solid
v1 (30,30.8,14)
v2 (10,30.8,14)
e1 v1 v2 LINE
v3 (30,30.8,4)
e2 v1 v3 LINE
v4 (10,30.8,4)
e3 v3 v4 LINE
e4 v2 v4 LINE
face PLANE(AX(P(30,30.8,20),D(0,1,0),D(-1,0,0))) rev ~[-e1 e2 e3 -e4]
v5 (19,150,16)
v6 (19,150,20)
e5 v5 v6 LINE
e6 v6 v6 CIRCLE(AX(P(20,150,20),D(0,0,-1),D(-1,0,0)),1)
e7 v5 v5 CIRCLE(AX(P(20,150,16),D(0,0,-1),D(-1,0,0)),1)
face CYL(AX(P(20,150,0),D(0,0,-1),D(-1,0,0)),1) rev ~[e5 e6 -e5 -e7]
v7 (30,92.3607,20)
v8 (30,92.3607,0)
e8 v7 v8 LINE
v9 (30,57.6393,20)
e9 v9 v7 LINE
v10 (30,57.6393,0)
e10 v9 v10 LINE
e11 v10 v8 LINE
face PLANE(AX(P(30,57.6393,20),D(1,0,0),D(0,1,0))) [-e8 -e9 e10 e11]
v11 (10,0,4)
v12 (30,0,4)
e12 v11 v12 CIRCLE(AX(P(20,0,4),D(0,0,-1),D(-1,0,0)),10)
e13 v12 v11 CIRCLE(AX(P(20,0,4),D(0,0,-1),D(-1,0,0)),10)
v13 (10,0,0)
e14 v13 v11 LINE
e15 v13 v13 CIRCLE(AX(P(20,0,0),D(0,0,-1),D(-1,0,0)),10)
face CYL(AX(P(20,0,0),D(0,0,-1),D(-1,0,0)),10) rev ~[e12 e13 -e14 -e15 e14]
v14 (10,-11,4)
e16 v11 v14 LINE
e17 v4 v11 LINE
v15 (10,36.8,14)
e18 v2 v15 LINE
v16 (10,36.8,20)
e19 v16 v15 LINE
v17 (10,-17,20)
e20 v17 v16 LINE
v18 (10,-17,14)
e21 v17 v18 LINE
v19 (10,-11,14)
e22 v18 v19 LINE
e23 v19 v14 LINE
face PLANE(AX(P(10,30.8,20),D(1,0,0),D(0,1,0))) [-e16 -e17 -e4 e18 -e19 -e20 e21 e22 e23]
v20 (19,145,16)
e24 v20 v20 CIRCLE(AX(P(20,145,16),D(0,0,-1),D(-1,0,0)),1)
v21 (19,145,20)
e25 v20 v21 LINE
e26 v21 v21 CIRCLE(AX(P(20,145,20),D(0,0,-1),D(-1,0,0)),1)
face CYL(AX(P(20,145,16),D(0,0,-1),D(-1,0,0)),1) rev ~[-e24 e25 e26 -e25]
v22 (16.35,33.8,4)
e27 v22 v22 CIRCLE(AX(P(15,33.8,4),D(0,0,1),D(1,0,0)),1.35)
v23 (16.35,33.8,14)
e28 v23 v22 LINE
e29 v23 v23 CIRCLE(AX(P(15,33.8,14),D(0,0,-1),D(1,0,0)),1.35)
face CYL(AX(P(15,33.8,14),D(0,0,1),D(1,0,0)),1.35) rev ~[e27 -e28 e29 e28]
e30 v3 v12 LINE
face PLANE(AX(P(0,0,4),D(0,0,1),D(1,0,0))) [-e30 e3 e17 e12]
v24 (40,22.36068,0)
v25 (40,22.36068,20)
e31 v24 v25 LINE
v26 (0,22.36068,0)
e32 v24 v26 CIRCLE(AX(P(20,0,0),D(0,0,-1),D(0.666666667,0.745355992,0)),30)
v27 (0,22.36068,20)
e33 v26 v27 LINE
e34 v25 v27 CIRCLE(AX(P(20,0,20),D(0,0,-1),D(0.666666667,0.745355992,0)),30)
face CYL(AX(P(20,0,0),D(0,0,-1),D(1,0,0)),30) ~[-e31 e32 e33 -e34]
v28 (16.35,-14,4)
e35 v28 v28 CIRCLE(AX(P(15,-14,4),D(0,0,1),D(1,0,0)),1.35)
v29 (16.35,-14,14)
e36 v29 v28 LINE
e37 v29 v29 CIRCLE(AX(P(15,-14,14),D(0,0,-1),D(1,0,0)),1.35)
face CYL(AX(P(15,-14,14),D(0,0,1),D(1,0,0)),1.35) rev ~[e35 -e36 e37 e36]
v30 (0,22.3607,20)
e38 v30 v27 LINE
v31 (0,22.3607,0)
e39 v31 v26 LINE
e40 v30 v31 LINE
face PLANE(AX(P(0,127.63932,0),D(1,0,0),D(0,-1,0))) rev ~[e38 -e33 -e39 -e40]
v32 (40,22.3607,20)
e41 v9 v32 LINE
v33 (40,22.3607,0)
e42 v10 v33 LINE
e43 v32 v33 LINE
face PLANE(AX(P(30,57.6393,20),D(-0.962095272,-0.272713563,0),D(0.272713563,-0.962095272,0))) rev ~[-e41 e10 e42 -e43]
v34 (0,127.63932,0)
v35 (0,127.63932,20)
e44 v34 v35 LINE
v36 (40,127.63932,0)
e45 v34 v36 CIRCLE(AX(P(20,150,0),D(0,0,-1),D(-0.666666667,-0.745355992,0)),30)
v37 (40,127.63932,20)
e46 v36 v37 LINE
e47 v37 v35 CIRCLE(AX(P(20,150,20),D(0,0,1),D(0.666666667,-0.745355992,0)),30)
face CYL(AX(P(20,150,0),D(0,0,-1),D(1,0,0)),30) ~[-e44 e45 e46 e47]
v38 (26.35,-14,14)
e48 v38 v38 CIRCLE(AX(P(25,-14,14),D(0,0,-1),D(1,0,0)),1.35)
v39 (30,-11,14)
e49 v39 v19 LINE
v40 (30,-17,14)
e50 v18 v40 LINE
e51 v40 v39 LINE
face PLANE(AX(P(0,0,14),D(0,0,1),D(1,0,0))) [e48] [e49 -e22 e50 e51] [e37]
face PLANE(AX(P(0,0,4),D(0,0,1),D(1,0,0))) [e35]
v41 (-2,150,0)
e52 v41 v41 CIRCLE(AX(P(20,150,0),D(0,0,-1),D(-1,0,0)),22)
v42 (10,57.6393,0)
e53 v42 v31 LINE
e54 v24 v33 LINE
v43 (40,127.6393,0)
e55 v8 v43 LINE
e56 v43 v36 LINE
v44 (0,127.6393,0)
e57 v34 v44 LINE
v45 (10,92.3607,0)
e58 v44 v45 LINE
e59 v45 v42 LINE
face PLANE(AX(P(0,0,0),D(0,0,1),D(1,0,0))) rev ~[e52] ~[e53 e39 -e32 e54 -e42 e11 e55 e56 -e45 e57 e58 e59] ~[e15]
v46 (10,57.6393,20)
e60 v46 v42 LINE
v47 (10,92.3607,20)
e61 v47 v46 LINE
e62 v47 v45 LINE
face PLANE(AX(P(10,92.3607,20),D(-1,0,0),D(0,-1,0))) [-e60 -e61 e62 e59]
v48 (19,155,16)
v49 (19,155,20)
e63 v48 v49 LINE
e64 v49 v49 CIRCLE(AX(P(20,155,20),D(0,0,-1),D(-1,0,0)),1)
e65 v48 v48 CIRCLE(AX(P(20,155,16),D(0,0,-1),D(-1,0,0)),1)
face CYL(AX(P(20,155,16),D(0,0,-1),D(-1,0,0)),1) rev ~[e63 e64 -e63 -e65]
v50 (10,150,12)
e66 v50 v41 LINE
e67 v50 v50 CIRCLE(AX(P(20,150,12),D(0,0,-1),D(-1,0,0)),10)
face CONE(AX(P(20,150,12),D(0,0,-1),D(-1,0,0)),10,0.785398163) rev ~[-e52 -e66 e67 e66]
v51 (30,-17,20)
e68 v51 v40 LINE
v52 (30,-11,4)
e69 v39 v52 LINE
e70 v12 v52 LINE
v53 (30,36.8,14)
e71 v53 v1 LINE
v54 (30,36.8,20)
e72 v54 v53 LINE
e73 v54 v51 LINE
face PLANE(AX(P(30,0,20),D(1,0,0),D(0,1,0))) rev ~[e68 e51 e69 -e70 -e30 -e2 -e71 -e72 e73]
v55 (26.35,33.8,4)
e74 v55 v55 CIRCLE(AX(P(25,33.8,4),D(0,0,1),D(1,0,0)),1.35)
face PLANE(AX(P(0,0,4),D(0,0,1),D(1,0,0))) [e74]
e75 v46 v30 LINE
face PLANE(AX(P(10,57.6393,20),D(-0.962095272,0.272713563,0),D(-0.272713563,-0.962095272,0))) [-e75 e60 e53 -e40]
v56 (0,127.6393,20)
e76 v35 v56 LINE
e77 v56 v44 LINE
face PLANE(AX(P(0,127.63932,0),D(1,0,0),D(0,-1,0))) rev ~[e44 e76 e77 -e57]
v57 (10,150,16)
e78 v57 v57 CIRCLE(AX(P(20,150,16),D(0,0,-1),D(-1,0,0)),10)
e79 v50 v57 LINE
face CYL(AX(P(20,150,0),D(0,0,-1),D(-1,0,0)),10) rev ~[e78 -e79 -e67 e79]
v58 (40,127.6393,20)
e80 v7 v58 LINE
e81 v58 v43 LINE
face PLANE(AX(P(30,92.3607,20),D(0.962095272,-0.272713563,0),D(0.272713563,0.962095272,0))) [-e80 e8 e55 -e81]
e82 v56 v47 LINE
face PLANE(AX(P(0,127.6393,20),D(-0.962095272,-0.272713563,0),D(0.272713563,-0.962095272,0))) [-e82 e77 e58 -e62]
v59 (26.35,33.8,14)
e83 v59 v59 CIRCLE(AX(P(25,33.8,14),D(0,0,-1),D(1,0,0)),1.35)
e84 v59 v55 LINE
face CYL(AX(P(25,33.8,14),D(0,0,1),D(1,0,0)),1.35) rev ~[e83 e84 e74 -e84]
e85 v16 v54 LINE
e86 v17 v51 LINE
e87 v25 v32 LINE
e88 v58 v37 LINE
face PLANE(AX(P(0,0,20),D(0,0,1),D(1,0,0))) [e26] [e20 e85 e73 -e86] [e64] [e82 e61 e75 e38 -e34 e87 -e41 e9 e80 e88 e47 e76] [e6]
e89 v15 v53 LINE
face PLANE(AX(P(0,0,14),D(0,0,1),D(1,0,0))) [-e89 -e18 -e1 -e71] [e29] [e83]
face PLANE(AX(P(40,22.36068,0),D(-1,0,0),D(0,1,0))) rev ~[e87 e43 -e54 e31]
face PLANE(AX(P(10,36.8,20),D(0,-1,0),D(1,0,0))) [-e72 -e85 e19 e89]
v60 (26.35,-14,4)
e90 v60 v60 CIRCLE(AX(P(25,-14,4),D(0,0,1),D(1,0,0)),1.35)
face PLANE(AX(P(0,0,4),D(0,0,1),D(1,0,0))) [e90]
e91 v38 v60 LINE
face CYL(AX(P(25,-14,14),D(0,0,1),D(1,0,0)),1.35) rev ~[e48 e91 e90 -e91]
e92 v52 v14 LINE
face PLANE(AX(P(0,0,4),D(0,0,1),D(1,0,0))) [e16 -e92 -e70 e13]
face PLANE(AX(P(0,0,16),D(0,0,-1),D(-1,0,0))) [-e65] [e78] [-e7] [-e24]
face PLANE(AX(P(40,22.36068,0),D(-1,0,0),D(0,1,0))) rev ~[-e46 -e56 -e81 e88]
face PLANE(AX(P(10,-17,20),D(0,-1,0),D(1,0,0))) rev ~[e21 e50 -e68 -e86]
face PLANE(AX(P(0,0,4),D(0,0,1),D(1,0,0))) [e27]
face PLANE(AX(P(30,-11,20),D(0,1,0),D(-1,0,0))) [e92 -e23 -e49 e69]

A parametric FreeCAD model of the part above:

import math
import FreeCAD as App
import Part
import Sketcher
from FreeCAD import Vector
Q = App.Units.Quantity


def edges_at(feature, points):
    """Names of the edges that pass closest to the given points."""
    edges = feature.Shape.Edges
    near = lambda p: min(range(len(edges)), key=lambda i: edges[i].distToShape(Part.Vertex(*p))[0])
    return sorted({f"Edge{near(p) + 1}" for p in points})

doc = App.newDocument("Part")
body = doc.addObject("PartDesign::Body", "Body")

sketch1 = doc.addObject("Sketcher::SketchObject", "Sketch")
body.addObject(sketch1)
sketch1.AttachmentSupport = (doc.XY_Plane, [""])
sketch1.MapMode = "FlatFace"
sketch1.addGeometry(Part.LineSegment(Vector(40, 22, 0), Vector(40, 128, 0)), False)
sketch1.addGeometry(Part.ArcOfCircle(Part.Circle(Vector(20, 150, 0), Vector(0, 0, 1), 30), math.radians(-48), math.radians(228)), False)
sketch1.addGeometry(Part.LineSegment(Vector(0, 128, 0), Vector(0, 22, 0)), False)
sketch1.addGeometry(Part.ArcOfCircle(Part.Circle(Vector(20, 0, 0), Vector(0, 0, 1), 30), math.radians(132), math.radians(408)), False)
sketch1.addConstraint(Sketcher.Constraint("Coincident", 0, 2, 1, 1))
sketch1.addConstraint(Sketcher.Constraint("Coincident", 1, 2, 2, 1))
sketch1.addConstraint(Sketcher.Constraint("Coincident", 2, 2, 3, 1))
sketch1.addConstraint(Sketcher.Constraint("Coincident", 3, 2, 0, 1))
sketch1.addConstraint(Sketcher.Constraint("Vertical", 0))
sketch1.addConstraint(Sketcher.Constraint("Vertical", 2))
sketch1.addConstraint(Sketcher.Constraint("Equal", 1, 3))
sketch1.addConstraint(Sketcher.Constraint("PointOnObject", 3, 3, -1))
sketch1.addConstraint(Sketcher.Constraint("PointOnObject", 1, 2, -2))
sketch1.addConstraint(Sketcher.Constraint("Horizontal", 0, 2, 1, 2))
sketch1.addConstraint(Sketcher.Constraint("Horizontal", 2, 2, 3, 2))
sketch1.addConstraint(Sketcher.Constraint("Radius", 1, Q("30 mm")))
sketch1.addConstraint(Sketcher.Constraint("DistanceY", -1, 1, 1, 3, Q("150 mm")))
sketch1.addConstraint(Sketcher.Constraint("DistanceX", -1, 1, 0, 2, Q("40 mm")))
pad1 = doc.addObject("PartDesign::Pad", "Pad")
body.addObject(pad1)
pad1.Profile = sketch1
pad1.Length = 20

sketch2 = doc.addObject("Sketcher::SketchObject", "Sketch001")
body.addObject(sketch2)
sketch2.AttachmentSupport = (doc.XY_Plane, [""])
sketch2.MapMode = "FlatFace"
sketch2.AttachmentOffset = App.Placement(Vector(0, 0, 20), App.Rotation())
sketch2.addGeometry(Part.LineSegment(Vector(10, 31, 0), Vector(10, -11, 0)), False)
sketch2.addGeometry(Part.LineSegment(Vector(10, -11, 0), Vector(30, -11, 0)), False)
sketch2.addGeometry(Part.LineSegment(Vector(30, -11, 0), Vector(30, 31, 0)), False)
sketch2.addGeometry(Part.LineSegment(Vector(30, 31, 0), Vector(10, 31, 0)), False)
sketch2.addConstraint(Sketcher.Constraint("Coincident", 0, 2, 1, 1))
sketch2.addConstraint(Sketcher.Constraint("Coincident", 1, 2, 2, 1))
sketch2.addConstraint(Sketcher.Constraint("Coincident", 2, 2, 3, 1))
sketch2.addConstraint(Sketcher.Constraint("Coincident", 3, 2, 0, 1))
sketch2.addConstraint(Sketcher.Constraint("Vertical", 0))
sketch2.addConstraint(Sketcher.Constraint("Horizontal", 1))
sketch2.addConstraint(Sketcher.Constraint("Vertical", 2))
sketch2.addConstraint(Sketcher.Constraint("Horizontal", 3))
sketch2.addConstraint(Sketcher.Constraint("DistanceX", 1, 1, 1, 2, Q("20 mm")))
sketch2.addConstraint(Sketcher.Constraint("DistanceY", 0, 2, 0, 1, Q("41.8 mm")))
sketch2.addConstraint(Sketcher.Constraint("DistanceX", -1, 1, 0, 2, Q("10 mm")))
sketch2.addConstraint(Sketcher.Constraint("DistanceY", 0, 2, -1, 1, Q("11 mm")))
pocket1 = doc.addObject("PartDesign::Pocket", "Pocket")
body.addObject(pocket1)
pocket1.Profile = sketch2
pocket1.Length = 16

sketch3 = doc.addObject("Sketcher::SketchObject", "Sketch002")
body.addObject(sketch3)
sketch3.AttachmentSupport = (doc.XY_Plane, [""])
sketch3.MapMode = "FlatFace"
sketch3.addGeometry(Part.Circle(Vector(20, 0, 0), Vector(0, 0, 1), 10), False)
sketch3.addConstraint(Sketcher.Constraint("PointOnObject", 0, 3, -1))
sketch3.addConstraint(Sketcher.Constraint("Diameter", 0, Q("20 mm")))
sketch3.addConstraint(Sketcher.Constraint("DistanceX", -1, 1, 0, 3, Q("20 mm")))
pocket2 = doc.addObject("PartDesign::Pocket", "Pocket001")
body.addObject(pocket2)
pocket2.Profile = sketch3
pocket2.Length = 69.725
pocket2.Reversed = True

sketch4 = doc.addObject("Sketcher::SketchObject", "Sketch003")
body.addObject(sketch4)
sketch4.AttachmentSupport = (doc.XY_Plane, [""])
sketch4.MapMode = "FlatFace"
sketch4.AttachmentOffset = App.Placement(Vector(0, 0, 20), App.Rotation())
sketch4.addGeometry(Part.LineSegment(Vector(30, -11, 0), Vector(10, -11, 0)), False)
sketch4.addGeometry(Part.LineSegment(Vector(10, -11, 0), Vector(10, -17, 0)), False)
sketch4.addGeometry(Part.LineSegment(Vector(10, -17, 0), Vector(30, -17, 0)), False)
sketch4.addGeometry(Part.LineSegment(Vector(30, -17, 0), Vector(30, -11, 0)), False)
sketch4.addGeometry(Part.LineSegment(Vector(10, 31, 0), Vector(30, 31, 0)), False)
sketch4.addGeometry(Part.LineSegment(Vector(30, 31, 0), Vector(30, 37, 0)), False)
sketch4.addGeometry(Part.LineSegment(Vector(30, 37, 0), Vector(10, 37, 0)), False)
sketch4.addGeometry(Part.LineSegment(Vector(10, 37, 0), Vector(10, 31, 0)), False)
sketch4.addConstraint(Sketcher.Constraint("Coincident", 0, 2, 1, 1))
sketch4.addConstraint(Sketcher.Constraint("Coincident", 1, 2, 2, 1))
sketch4.addConstraint(Sketcher.Constraint("Coincident", 2, 2, 3, 1))
sketch4.addConstraint(Sketcher.Constraint("Coincident", 3, 2, 0, 1))
sketch4.addConstraint(Sketcher.Constraint("Coincident", 4, 2, 5, 1))
sketch4.addConstraint(Sketcher.Constraint("Coincident", 5, 2, 6, 1))
sketch4.addConstraint(Sketcher.Constraint("Coincident", 6, 2, 7, 1))
sketch4.addConstraint(Sketcher.Constraint("Coincident", 7, 2, 4, 1))
sketch4.addConstraint(Sketcher.Constraint("Horizontal", 0))
sketch4.addConstraint(Sketcher.Constraint("Vertical", 1))
sketch4.addConstraint(Sketcher.Constraint("Horizontal", 2))
sketch4.addConstraint(Sketcher.Constraint("Vertical", 3))
sketch4.addConstraint(Sketcher.Constraint("Horizontal", 4))
sketch4.addConstraint(Sketcher.Constraint("Vertical", 5))
sketch4.addConstraint(Sketcher.Constraint("Horizontal", 6))
sketch4.addConstraint(Sketcher.Constraint("Vertical", 7))
sketch4.addConstraint(Sketcher.Constraint("Vertical", 3, 2, 4, 2))
sketch4.addConstraint(Sketcher.Constraint("Vertical", 1, 2, 6, 2))
sketch4.addConstraint(Sketcher.Constraint("Equal", 3, 5))
sketch4.addConstraint(Sketcher.Constraint("DistanceY", 1, 2, 1, 1, Q("6 mm")))
sketch4.addConstraint(Sketcher.Constraint("DistanceX", 0, 2, 0, 1, Q("20 mm")))
sketch4.addConstraint(Sketcher.Constraint("DistanceX", -1, 1, 0, 2, Q("10 mm")))
sketch4.addConstraint(Sketcher.Constraint("DistanceY", 0, 2, -1, 1, Q("11 mm")))
sketch4.addConstraint(Sketcher.Constraint("DistanceY", -1, 1, 4, 2, Q("30.8 mm")))
pocket3 = doc.addObject("PartDesign::Pocket", "Pocket002")
body.addObject(pocket3)
pocket3.Profile = sketch4
pocket3.Length = 6

sketch5 = doc.addObject("Sketcher::SketchObject", "Sketch004")
body.addObject(sketch5)
sketch5.AttachmentSupport = (doc.XY_Plane, [""])
sketch5.MapMode = "FlatFace"
sketch5.AttachmentOffset = App.Placement(Vector(0, 0, 14), App.Rotation())
sketch5.addGeometry(Part.Circle(Vector(25, 33.8, 0), Vector(0, 0, 1), 1.4), False)
sketch5.addGeometry(Part.Circle(Vector(25, -14, 0), Vector(0, 0, 1), 1.4), False)
sketch5.addGeometry(Part.Circle(Vector(15, 33.8, 0), Vector(0, 0, 1), 1.4), False)
sketch5.addGeometry(Part.Circle(Vector(15, -14, 0), Vector(0, 0, 1), 1.4), False)
sketch5.addConstraint(Sketcher.Constraint("Equal", 0, 1))
sketch5.addConstraint(Sketcher.Constraint("Equal", 1, 2))
sketch5.addConstraint(Sketcher.Constraint("Equal", 2, 3))
sketch5.addConstraint(Sketcher.Constraint("Horizontal", 0, 3, 2, 3))
sketch5.addConstraint(Sketcher.Constraint("Horizontal", 1, 3, 3, 3))
sketch5.addConstraint(Sketcher.Constraint("Vertical", 0, 3, 1, 3))
sketch5.addConstraint(Sketcher.Constraint("Vertical", 2, 3, 3, 3))
sketch5.addConstraint(Sketcher.Constraint("Diameter", 0, Q("2.7 mm")))
sketch5.addConstraint(Sketcher.Constraint("DistanceX", -1, 1, 0, 3, Q("25 mm")))
sketch5.addConstraint(Sketcher.Constraint("DistanceY", 1, 3, -1, 1, Q("14 mm")))
sketch5.addConstraint(Sketcher.Constraint("DistanceX", -1, 1, 2, 3, Q("15 mm")))
sketch5.addConstraint(Sketcher.Constraint("DistanceY", -1, 1, 0, 3, Q("33.8 mm")))
pocket4 = doc.addObject("PartDesign::Pocket", "Pocket003")
body.addObject(pocket4)
pocket4.Profile = sketch5
pocket4.Length = 10

sketch6 = doc.addObject("Sketcher::SketchObject", "Sketch005")
body.addObject(sketch6)
sketch6.AttachmentSupport = (doc.XY_Plane, [""])
sketch6.MapMode = "FlatFace"
sketch6.addGeometry(Part.Circle(Vector(20, 150, 0), Vector(0, 0, 1), 1), False)
sketch6.addGeometry(Part.Circle(Vector(15, 150, 0), Vector(0, 0, 1), 1), False)
sketch6.addGeometry(Part.Circle(Vector(25, 150, 0), Vector(0, 0, 1), 1), False)
sketch6.addConstraint(Sketcher.Constraint("Equal", 0, 1))
sketch6.addConstraint(Sketcher.Constraint("Equal", 1, 2))
sketch6.addConstraint(Sketcher.Constraint("Horizontal", 0, 3, 1, 3))
sketch6.addConstraint(Sketcher.Constraint("Horizontal", 1, 3, 2, 3))
sketch6.addConstraint(Sketcher.Constraint("Diameter", 0, Q("2 mm")))
sketch6.addConstraint(Sketcher.Constraint("DistanceX", -1, 1, 0, 3, Q("20 mm")))
sketch6.addConstraint(Sketcher.Constraint("DistanceY", -1, 1, 0, 3, Q("150 mm")))
sketch6.addConstraint(Sketcher.Constraint("DistanceX", -1, 1, 1, 3, Q("15 mm")))
sketch6.addConstraint(Sketcher.Constraint("DistanceX", -1, 1, 2, 3, Q("25 mm")))
pocket5 = doc.addObject("PartDesign::Pocket", "Pocket004")
body.addObject(pocket5)
pocket5.Profile = sketch6
pocket5.Length = 39.2125
pocket5.Reversed = True

sketch7 = doc.addObject("Sketcher::SketchObject", "Sketch006")
body.addObject(sketch7)
sketch7.AttachmentSupport = (doc.XY_Plane, [""])
sketch7.MapMode = "FlatFace"
sketch7.AttachmentOffset = App.Placement(Vector(0, 0, 20), App.Rotation())
sketch7.addGeometry(Part.Circle(Vector(20, 150, 0), Vector(0, 0, 1), 10), False)
sketch7.addConstraint(Sketcher.Constraint("Diameter", 0, Q("20 mm")))
sketch7.addConstraint(Sketcher.Constraint("DistanceX", -1, 1, 0, 3, Q("20 mm")))
sketch7.addConstraint(Sketcher.Constraint("DistanceY", -1, 1, 0, 3, Q("150 mm")))
pocket6 = doc.addObject("PartDesign::Pocket", "Pocket005")
body.addObject(pocket6)
pocket6.Profile = sketch7
pocket6.Length = 16

sketch8 = doc.addObject("Sketcher::SketchObject", "Sketch007")
body.addObject(sketch8)
sketch8.AttachmentSupport = (doc.XY_Plane, [""])
sketch8.MapMode = "FlatFace"
sketch8.AttachmentOffset = App.Placement(Vector(0, 0, 20), App.Rotation())
sketch8.addGeometry(Part.LineSegment(Vector(30, 58, 0), Vector(40, 22, 0)), False)
sketch8.addGeometry(Part.LineSegment(Vector(40, 22, 0), Vector(40, 128, 0)), False)
sketch8.addGeometry(Part.LineSegment(Vector(40, 128, 0), Vector(30, 92, 0)), False)
sketch8.addGeometry(Part.LineSegment(Vector(30, 92, 0), Vector(30, 58, 0)), False)
sketch8.addGeometry(Part.LineSegment(Vector(0, 22, 0), Vector(10, 58, 0)), False)
sketch8.addGeometry(Part.LineSegment(Vector(10, 58, 0), Vector(10, 92, 0)), False)
sketch8.addGeometry(Part.LineSegment(Vector(10, 92, 0), Vector(0, 128, 0)), False)
sketch8.addGeometry(Part.LineSegment(Vector(0, 128, 0), Vector(0, 22, 0)), False)
sketch8.addConstraint(Sketcher.Constraint("Coincident", 0, 2, 1, 1))
sketch8.addConstraint(Sketcher.Constraint("Coincident", 1, 2, 2, 1))
sketch8.addConstraint(Sketcher.Constraint("Coincident", 2, 2, 3, 1))
sketch8.addConstraint(Sketcher.Constraint("Coincident", 3, 2, 0, 1))
sketch8.addConstraint(Sketcher.Constraint("Coincident", 4, 2, 5, 1))
sketch8.addConstraint(Sketcher.Constraint("Coincident", 5, 2, 6, 1))
sketch8.addConstraint(Sketcher.Constraint("Coincident", 6, 2, 7, 1))
sketch8.addConstraint(Sketcher.Constraint("Coincident", 7, 2, 4, 1))
sketch8.addConstraint(Sketcher.Constraint("Vertical", 1))
sketch8.addConstraint(Sketcher.Constraint("Vertical", 3))
sketch8.addConstraint(Sketcher.Constraint("Vertical", 5))
sketch8.addConstraint(Sketcher.Constraint("Vertical", 7))
sketch8.addConstraint(Sketcher.Constraint("PointOnObject", 6, 2, -2))
sketch8.addConstraint(Sketcher.Constraint("Parallel", 2, 4))
sketch8.addConstraint(Sketcher.Constraint("Parallel", 0, 6))
sketch8.addConstraint(Sketcher.Constraint("Horizontal", 3, 2, 4, 2))
sketch8.addConstraint(Sketcher.Constraint("Horizontal", 2, 2, 5, 2))
sketch8.addConstraint(Sketcher.Constraint("Horizontal", 1, 2, 6, 2))
sketch8.addConstraint(Sketcher.Constraint("Horizontal", 0, 2, 7, 2))
sketch8.addConstraint(Sketcher.Constraint("DistanceY", 0, 2, 2, 2, Q("70 mm")))
sketch8.addConstraint(Sketcher.Constraint("DistanceX", 4, 2, 3, 2, Q("20 mm")))
sketch8.addConstraint(Sketcher.Constraint("DistanceX", -1, 1, 0, 2, Q("40 mm")))
sketch8.addConstraint(Sketcher.Constraint("DistanceY", 1, 1, 1, 2, Q("105.2786 mm")))
sketch8.addConstraint(Sketcher.Constraint("DistanceY", -1, 1, 0, 2, Q("22.3607 mm")))
pocket7 = doc.addObject("PartDesign::Pocket", "Pocket006")
body.addObject(pocket7)
pocket7.Profile = sketch8
pocket7.Length = 56.675

sketch9 = doc.addObject("Sketcher::SketchObject", "Sketch008")
body.addObject(sketch9)
sketch9.AttachmentSupport = (doc.XY_Plane, [""])
sketch9.MapMode = "FlatFace"
sketch9.AttachmentOffset = App.Placement(Vector(0, 0, 20), App.Rotation())
sketch9.addGeometry(Part.Circle(Vector(20, 150, 0), Vector(0, 0, 1), 10), False)
sketch9.addConstraint(Sketcher.Constraint("Diameter", 0, Q("20 mm")))
sketch9.addConstraint(Sketcher.Constraint("DistanceX", -1, 1, 0, 3, Q("20 mm")))
sketch9.addConstraint(Sketcher.Constraint("DistanceY", -1, 1, 0, 3, Q("150 mm")))
pad2 = doc.addObject("PartDesign::Pad", "Pad001")
body.addObject(pad2)
pad2.Profile = sketch9
pad2.Length = 16
pad2.Reversed = True

sketch10 = doc.addObject("Sketcher::SketchObject", "Sketch009")
body.addObject(sketch10)
sketch10.AttachmentSupport = (doc.XY_Plane, [""])
sketch10.MapMode = "FlatFace"
sketch10.addGeometry(Part.Circle(Vector(20, 150, 0), Vector(0, 0, 1), 10), False)
sketch10.addGeometry(Part.Circle(Vector(20, 150, 0), Vector(0, 0, 1), 1), False)
sketch10.addConstraint(Sketcher.Constraint("Coincident", 1, 3, 0, 3))
sketch10.addConstraint(Sketcher.Constraint("Diameter", 0, Q("20 mm")))
sketch10.addConstraint(Sketcher.Constraint("Diameter", 1, Q("2 mm")))
sketch10.addConstraint(Sketcher.Constraint("DistanceX", -1, 1, 0, 3, Q("20 mm")))
sketch10.addConstraint(Sketcher.Constraint("DistanceY", -1, 1, 0, 3, Q("150 mm")))
pocket8 = doc.addObject("PartDesign::Pocket", "Pocket007")
body.addObject(pocket8)
pocket8.Profile = sketch10
pocket8.Length = 16
pocket8.Reversed = True

sketch11 = doc.addObject("Sketcher::SketchObject", "Sketch010")
body.addObject(sketch11)
sketch11.AttachmentSupport = (doc.XY_Plane, [""])
sketch11.MapMode = "FlatFace"
sketch11.addGeometry(Part.Circle(Vector(20, 150, 0), Vector(0, 0, 1), 1), False)
sketch11.addConstraint(Sketcher.Constraint("Diameter", 0, Q("2 mm")))
sketch11.addConstraint(Sketcher.Constraint("DistanceX", -1, 1, 0, 3, Q("20 mm")))
sketch11.addConstraint(Sketcher.Constraint("DistanceY", -1, 1, 0, 3, Q("150 mm")))
pad3 = doc.addObject("PartDesign::Pad", "Pad002")
body.addObject(pad3)
pad3.Profile = sketch11
pad3.Length = 20

sketch12 = doc.addObject("Sketcher::SketchObject", "Sketch011")
body.addObject(sketch12)
sketch12.AttachmentSupport = (doc.XY_Plane, [""])
sketch12.MapMode = "FlatFace"
sketch12.addGeometry(Part.Circle(Vector(20, 150, 0), Vector(0, 0, 1), 1), False)
sketch12.addConstraint(Sketcher.Constraint("Diameter", 0, Q("2 mm")))
sketch12.addConstraint(Sketcher.Constraint("DistanceX", -1, 1, 0, 3, Q("20 mm")))
sketch12.addConstraint(Sketcher.Constraint("DistanceY", -1, 1, 0, 3, Q("150 mm")))
pocket9 = doc.addObject("PartDesign::Pocket", "Pocket008")
body.addObject(pocket9)
pocket9.Profile = sketch12
pocket9.Length = 49.85
pocket9.Reversed = True

sketch13 = doc.addObject("Sketcher::SketchObject", "Sketch012")
body.addObject(sketch13)
sketch13.AttachmentSupport = (doc.XY_Plane, [""])
sketch13.MapMode = "FlatFace"
sketch13.AttachmentOffset = App.Placement(Vector(0, 0, 16), App.Rotation())
sketch13.addGeometry(Part.Circle(Vector(20, 145, 0), Vector(0, 0, 1), 1), False)
sketch13.addGeometry(Part.Circle(Vector(20, 155, 0), Vector(0, 0, 1), 1), False)
sketch13.addConstraint(Sketcher.Constraint("Equal", 0, 1))
sketch13.addConstraint(Sketcher.Constraint("Vertical", 0, 3, 1, 3))
sketch13.addConstraint(Sketcher.Constraint("Diameter", 0, Q("2 mm")))
sketch13.addConstraint(Sketcher.Constraint("DistanceX", -1, 1, 0, 3, Q("20 mm")))
sketch13.addConstraint(Sketcher.Constraint("DistanceY", -1, 1, 0, 3, Q("145 mm")))
sketch13.addConstraint(Sketcher.Constraint("DistanceY", -1, 1, 1, 3, Q("155 mm")))
pocket10 = doc.addObject("PartDesign::Pocket", "Pocket009")
body.addObject(pocket10)
pocket10.Profile = sketch13
pocket10.Length = 42.225
pocket10.Reversed = True
doc.recompute()

chamfer = doc.addObject("PartDesign::Chamfer", "Chamfer")
body.addObject(chamfer)
chamfer.Base = (pocket10, edges_at(pocket10, [(30, 150, 0)]))
chamfer.Size = 12

doc.recompute()
